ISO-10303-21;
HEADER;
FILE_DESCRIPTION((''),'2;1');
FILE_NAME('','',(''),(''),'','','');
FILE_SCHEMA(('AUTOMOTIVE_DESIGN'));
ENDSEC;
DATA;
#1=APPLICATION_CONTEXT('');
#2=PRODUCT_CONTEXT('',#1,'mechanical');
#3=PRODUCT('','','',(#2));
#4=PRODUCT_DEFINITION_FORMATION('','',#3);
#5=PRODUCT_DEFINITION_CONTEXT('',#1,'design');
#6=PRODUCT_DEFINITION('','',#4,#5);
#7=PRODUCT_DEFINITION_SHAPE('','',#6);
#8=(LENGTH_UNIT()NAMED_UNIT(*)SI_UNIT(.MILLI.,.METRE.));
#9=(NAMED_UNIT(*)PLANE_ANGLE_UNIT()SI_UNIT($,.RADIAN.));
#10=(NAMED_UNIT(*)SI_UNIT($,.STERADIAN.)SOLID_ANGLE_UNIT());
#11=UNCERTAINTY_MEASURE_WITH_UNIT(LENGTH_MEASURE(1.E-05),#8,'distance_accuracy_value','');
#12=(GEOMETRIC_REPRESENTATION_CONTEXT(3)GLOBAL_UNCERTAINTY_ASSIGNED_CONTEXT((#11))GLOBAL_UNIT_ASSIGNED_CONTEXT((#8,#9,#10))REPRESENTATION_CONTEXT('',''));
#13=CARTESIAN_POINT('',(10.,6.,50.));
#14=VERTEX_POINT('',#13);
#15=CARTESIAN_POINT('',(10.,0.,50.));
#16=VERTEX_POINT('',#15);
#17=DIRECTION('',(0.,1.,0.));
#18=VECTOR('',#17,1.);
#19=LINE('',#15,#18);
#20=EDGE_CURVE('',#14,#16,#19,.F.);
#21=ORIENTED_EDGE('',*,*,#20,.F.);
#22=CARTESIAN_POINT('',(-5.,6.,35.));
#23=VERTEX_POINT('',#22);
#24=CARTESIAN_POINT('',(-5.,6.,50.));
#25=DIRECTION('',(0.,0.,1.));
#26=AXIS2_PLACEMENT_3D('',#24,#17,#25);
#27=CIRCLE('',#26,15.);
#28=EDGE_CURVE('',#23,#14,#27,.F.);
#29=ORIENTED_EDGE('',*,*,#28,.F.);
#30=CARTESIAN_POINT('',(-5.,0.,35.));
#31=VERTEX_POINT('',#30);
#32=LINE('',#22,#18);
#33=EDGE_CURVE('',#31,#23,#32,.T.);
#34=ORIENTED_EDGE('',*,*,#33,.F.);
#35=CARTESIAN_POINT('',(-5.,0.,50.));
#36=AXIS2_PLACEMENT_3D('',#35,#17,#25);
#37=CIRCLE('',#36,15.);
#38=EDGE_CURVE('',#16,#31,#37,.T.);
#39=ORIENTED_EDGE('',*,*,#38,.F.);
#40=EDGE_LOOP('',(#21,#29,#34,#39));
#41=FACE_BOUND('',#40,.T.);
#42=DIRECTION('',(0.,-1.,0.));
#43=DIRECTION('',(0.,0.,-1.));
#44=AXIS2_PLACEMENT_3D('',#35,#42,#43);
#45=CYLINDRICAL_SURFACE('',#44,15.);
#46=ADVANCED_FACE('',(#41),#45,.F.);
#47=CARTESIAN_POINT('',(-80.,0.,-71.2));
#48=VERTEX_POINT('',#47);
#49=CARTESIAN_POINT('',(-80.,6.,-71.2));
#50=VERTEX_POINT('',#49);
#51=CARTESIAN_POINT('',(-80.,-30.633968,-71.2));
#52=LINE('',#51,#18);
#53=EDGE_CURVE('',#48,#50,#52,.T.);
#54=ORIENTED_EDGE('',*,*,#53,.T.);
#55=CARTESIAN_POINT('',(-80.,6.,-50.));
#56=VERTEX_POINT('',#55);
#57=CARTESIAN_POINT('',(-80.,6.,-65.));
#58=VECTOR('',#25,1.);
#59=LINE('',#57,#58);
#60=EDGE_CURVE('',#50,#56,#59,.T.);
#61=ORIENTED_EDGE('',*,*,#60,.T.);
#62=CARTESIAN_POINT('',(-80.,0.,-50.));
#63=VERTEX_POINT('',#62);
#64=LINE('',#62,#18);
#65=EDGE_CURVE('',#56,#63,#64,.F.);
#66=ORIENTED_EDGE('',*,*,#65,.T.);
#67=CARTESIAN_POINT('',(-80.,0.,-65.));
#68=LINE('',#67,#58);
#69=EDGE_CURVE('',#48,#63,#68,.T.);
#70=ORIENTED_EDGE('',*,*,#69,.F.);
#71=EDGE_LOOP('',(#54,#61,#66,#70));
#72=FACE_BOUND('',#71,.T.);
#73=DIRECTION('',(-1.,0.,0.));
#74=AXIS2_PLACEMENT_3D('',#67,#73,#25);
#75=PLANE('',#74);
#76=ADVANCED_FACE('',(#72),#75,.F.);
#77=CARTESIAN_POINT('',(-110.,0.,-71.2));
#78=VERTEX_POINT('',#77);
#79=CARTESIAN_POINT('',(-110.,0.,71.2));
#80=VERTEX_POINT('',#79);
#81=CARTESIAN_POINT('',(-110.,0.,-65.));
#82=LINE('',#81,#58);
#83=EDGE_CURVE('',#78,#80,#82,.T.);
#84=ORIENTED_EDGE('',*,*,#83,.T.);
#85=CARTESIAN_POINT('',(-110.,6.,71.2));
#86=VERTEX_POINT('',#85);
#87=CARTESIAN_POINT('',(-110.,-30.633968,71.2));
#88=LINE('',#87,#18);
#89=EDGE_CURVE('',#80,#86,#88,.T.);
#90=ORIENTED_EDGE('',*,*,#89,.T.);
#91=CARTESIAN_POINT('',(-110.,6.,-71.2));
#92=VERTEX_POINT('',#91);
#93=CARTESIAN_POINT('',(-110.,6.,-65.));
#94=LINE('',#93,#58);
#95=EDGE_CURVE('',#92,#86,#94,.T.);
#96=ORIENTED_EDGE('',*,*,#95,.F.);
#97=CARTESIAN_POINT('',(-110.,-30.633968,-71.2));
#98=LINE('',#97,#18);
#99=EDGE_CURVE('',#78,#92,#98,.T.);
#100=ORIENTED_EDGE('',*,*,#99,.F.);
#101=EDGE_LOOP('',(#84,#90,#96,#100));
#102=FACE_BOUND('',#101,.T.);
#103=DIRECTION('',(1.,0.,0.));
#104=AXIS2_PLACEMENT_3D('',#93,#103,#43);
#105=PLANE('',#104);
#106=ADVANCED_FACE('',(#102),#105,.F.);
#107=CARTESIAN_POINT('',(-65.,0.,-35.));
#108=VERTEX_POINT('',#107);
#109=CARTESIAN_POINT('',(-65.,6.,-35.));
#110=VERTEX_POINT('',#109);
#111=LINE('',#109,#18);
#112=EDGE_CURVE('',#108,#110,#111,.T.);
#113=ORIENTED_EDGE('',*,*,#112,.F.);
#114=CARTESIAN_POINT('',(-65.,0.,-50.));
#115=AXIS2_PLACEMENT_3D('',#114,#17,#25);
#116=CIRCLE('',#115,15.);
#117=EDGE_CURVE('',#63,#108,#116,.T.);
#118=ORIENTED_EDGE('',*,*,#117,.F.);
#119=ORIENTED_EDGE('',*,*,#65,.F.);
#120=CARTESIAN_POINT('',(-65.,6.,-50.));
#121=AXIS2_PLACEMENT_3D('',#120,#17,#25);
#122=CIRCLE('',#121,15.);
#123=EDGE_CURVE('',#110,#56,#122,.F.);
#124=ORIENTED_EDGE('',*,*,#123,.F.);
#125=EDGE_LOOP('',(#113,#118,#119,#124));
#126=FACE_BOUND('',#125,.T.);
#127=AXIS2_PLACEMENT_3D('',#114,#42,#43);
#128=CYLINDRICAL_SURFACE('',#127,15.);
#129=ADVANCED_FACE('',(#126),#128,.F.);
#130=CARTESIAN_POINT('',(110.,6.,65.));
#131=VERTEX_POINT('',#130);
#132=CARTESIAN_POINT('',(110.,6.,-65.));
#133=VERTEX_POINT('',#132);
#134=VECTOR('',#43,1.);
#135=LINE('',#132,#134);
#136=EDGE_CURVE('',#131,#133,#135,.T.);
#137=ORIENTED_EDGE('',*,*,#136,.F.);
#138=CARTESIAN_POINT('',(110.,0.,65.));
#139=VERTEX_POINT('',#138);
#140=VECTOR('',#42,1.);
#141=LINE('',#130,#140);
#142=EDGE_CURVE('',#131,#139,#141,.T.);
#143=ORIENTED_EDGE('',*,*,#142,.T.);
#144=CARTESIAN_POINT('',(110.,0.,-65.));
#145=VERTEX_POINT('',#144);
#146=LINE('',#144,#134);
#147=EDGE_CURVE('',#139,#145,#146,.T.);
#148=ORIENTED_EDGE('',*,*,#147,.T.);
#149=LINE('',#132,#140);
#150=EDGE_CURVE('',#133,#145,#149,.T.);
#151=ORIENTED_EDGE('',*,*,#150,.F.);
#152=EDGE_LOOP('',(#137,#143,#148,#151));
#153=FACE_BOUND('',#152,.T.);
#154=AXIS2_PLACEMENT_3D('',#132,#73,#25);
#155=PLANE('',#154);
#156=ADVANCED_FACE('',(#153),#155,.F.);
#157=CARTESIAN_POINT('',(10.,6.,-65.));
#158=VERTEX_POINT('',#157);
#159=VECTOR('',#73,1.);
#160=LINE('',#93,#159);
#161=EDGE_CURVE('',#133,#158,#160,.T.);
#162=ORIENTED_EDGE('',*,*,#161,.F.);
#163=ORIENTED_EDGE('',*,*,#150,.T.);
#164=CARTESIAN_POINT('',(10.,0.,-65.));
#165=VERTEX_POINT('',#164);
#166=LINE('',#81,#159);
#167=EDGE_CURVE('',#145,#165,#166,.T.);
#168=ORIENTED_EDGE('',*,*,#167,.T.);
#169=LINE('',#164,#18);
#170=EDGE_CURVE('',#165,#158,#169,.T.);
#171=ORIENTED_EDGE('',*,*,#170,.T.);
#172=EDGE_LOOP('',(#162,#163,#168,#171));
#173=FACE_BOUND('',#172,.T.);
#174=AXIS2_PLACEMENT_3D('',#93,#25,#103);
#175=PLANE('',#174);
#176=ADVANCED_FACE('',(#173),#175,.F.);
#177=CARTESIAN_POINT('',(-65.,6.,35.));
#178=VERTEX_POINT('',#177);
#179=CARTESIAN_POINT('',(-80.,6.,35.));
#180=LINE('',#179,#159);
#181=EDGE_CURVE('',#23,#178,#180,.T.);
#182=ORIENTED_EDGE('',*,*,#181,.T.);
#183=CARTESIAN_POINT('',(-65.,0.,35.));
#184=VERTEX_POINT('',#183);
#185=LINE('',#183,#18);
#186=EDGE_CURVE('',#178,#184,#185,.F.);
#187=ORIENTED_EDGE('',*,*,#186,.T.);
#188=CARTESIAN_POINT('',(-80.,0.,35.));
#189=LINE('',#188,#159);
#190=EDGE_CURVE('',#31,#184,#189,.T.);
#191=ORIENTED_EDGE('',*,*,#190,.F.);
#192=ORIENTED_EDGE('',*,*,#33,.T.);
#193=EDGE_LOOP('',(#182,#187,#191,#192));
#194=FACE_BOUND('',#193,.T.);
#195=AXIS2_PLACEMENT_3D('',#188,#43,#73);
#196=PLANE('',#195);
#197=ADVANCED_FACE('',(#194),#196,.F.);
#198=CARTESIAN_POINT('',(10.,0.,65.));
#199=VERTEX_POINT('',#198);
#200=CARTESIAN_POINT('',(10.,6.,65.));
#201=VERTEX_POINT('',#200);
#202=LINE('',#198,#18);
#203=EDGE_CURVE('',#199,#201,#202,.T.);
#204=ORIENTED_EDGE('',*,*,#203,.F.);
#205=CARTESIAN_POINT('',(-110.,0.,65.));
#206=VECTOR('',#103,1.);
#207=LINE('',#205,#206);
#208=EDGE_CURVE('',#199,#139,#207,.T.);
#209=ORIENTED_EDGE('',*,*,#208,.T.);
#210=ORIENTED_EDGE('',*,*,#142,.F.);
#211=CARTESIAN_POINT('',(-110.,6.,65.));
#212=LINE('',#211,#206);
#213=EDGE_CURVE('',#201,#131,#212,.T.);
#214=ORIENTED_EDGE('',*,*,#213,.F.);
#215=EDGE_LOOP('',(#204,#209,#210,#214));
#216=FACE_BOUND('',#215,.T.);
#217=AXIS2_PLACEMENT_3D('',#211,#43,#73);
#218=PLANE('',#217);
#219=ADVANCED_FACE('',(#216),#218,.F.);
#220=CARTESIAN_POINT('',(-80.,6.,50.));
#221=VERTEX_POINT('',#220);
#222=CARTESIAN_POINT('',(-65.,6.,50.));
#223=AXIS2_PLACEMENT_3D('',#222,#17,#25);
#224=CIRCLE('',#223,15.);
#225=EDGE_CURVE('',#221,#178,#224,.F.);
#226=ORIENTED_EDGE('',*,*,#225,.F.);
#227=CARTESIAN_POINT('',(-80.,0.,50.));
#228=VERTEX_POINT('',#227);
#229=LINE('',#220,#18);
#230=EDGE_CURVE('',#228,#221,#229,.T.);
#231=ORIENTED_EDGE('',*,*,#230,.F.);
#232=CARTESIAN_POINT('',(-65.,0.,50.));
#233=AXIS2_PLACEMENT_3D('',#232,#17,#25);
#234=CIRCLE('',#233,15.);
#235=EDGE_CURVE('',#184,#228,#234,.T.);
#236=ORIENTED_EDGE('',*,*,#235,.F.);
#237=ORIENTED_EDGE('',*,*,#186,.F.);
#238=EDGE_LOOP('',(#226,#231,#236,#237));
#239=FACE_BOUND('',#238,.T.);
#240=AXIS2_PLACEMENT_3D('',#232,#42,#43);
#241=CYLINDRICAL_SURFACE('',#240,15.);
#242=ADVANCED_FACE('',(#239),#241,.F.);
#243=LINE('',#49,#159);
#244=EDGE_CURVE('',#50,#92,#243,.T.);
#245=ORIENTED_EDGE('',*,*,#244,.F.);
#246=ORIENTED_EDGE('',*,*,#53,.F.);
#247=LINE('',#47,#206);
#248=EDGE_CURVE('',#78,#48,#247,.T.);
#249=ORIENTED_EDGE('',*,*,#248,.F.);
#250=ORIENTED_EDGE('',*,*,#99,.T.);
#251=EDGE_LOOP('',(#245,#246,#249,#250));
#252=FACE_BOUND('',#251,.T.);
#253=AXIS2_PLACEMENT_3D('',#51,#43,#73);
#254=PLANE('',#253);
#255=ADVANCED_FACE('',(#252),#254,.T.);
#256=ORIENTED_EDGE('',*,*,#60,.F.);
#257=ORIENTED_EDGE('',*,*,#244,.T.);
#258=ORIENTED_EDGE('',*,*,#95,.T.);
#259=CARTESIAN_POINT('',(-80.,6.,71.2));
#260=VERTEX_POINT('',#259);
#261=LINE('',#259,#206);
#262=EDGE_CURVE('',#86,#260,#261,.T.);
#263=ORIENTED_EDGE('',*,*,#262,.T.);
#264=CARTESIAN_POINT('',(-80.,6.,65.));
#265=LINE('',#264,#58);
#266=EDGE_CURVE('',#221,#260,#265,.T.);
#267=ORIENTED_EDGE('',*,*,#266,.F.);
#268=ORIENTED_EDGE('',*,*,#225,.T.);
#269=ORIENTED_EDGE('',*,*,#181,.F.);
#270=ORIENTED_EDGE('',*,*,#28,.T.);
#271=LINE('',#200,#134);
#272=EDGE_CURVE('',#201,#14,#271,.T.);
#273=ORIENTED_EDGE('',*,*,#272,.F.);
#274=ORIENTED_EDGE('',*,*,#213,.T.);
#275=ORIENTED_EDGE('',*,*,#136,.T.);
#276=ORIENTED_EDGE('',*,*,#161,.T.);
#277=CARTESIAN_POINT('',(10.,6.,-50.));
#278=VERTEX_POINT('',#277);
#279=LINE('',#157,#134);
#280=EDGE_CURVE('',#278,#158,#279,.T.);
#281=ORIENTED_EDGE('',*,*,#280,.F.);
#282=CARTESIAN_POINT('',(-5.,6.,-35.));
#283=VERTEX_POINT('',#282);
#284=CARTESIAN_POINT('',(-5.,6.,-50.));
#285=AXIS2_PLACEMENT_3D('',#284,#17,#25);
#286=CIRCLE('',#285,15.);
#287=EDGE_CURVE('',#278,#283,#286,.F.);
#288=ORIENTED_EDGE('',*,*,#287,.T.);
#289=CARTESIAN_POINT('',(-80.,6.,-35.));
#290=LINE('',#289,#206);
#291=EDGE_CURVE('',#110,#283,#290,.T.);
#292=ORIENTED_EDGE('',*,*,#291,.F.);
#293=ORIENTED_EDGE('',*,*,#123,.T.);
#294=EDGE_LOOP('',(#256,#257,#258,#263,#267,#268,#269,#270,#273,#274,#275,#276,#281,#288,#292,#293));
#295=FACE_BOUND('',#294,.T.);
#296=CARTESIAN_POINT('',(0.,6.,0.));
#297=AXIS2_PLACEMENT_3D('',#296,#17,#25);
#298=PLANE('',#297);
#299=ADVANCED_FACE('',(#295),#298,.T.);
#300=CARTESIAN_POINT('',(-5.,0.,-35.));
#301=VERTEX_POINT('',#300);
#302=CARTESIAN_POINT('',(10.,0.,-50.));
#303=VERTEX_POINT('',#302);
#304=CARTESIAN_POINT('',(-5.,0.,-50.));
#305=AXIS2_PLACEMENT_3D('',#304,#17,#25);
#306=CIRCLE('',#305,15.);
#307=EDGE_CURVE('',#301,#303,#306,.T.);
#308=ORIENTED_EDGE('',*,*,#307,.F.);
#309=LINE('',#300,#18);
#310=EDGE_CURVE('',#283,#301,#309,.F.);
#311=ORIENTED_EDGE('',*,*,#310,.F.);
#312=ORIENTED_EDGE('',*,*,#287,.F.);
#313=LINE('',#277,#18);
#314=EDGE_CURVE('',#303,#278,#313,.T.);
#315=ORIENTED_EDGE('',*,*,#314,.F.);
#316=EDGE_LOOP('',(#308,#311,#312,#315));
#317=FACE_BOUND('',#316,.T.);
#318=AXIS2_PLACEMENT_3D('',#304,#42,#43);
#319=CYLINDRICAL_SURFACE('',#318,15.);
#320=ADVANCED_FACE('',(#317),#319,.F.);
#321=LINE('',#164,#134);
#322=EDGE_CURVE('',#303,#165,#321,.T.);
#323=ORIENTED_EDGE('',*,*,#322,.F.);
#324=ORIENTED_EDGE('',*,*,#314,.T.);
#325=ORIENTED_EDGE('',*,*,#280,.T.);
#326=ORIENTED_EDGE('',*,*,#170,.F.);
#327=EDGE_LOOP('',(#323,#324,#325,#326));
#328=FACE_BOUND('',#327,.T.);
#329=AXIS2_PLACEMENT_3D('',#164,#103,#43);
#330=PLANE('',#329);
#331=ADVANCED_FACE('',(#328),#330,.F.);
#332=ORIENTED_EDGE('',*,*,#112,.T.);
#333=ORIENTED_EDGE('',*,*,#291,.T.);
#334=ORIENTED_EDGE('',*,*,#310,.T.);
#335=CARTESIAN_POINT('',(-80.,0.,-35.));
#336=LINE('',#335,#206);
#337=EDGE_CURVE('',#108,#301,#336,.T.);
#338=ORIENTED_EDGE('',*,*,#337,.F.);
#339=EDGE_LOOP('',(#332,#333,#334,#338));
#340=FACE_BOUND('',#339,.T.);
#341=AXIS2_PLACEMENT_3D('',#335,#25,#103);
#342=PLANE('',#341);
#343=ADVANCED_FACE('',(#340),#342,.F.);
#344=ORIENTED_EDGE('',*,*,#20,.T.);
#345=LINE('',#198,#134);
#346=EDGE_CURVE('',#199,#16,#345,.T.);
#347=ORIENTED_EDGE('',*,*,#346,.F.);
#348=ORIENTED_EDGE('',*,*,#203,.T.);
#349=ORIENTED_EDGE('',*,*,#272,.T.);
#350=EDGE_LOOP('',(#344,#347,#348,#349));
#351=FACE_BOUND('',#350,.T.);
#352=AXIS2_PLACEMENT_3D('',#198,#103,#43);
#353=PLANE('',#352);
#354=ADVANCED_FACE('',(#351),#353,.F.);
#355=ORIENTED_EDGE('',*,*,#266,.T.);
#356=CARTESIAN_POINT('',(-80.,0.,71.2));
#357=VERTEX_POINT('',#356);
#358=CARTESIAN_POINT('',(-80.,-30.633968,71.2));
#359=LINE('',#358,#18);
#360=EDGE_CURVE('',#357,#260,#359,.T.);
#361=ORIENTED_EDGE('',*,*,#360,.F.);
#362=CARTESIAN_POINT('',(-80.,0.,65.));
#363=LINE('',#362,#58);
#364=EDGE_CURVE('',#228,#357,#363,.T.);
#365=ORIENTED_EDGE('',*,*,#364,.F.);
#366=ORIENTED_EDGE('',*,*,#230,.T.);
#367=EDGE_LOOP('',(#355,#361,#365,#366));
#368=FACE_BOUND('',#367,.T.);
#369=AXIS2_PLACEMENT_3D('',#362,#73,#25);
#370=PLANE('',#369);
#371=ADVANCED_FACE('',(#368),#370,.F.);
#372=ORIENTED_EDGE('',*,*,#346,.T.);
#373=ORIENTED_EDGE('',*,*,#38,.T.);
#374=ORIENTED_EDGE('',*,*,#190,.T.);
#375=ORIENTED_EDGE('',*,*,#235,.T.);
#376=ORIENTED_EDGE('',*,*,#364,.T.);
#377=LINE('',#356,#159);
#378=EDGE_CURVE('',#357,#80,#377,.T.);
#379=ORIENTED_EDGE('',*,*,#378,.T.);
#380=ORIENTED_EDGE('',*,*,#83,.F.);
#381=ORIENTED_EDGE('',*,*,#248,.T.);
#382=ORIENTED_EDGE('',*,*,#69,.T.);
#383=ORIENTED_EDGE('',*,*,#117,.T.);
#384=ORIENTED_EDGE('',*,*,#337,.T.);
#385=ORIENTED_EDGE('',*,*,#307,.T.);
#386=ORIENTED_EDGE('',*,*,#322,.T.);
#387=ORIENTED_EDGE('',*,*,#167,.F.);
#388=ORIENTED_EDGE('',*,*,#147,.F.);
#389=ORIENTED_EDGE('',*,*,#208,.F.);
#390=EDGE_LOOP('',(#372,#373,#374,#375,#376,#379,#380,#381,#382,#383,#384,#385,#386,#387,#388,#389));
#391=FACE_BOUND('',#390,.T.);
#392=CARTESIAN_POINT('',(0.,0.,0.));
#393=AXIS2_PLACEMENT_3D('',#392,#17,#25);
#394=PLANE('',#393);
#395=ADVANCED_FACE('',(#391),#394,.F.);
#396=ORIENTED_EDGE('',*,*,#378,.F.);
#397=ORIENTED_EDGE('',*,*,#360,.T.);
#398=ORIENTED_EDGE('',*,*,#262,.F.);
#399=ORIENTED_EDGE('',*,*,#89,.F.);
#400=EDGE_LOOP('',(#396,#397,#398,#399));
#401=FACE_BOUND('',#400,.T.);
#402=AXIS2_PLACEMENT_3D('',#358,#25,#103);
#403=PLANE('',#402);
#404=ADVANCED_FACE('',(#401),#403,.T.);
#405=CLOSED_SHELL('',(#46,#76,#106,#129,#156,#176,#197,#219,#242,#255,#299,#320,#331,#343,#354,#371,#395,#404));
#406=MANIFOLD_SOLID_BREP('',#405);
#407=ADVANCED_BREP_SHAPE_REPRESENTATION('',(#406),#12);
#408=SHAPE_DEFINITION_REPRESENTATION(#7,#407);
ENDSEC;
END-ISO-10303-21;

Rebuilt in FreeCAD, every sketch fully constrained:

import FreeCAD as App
import Part
import Sketcher
from FreeCAD import Vector
Q = App.Units.Quantity


def edges_at(feature, points):
    """Names of the edges that pass closest to the given points."""
    edges = feature.Shape.Edges
    near = lambda p: min(range(len(edges)), key=lambda i: edges[i].distToShape(Part.Vertex(*p))[0])
    return sorted({f"Edge{near(p) + 1}" for p in points})


def add_polygon(sketch, points):
    """Adds a closed chain of lines whose ends are joined by coincident constraints."""
    first, n = sketch.GeometryCount, len(points)
    for a, b in zip(points, points[1:] + points[:1]):
        sketch.addGeometry(Part.LineSegment(App.Vector(*a, 0), App.Vector(*b, 0)), False)
    for i in range(n):
        sketch.addConstraint(Sketcher.Constraint("Coincident", first + i, 2, first + (i + 1) % n, 1))

doc = App.newDocument("Part")
body = doc.addObject("PartDesign::Body", "Body")

# Sketch on XZ plane
sketch1 = body.newObject("Sketcher::SketchObject", "Sketch")
sketch1.AttachmentSupport = (doc.getObject("XZ_Plane"), [""])
sketch1.MapMode = "FlatFace"
add_polygon(sketch1, [(-110, -65), (-110, 65), (110, 65), (110, -65)])  # lines 0-3
sketch1.addConstraint([
    Sketcher.Constraint("Vertical", 0),
    Sketcher.Constraint("Horizontal", 1),
    Sketcher.Constraint("Vertical", 2),
    Sketcher.Constraint("Horizontal", 3),
    Sketcher.Constraint("Symmetric", 0, 2, 2, 2, -1, 1),
    Sketcher.Constraint("DistanceX", 1, 1, 1, 2, Q("220 mm")),
    Sketcher.Constraint("DistanceY", 0, 1, 0, 2, Q("130 mm")),
])
pad1 = body.newObject("PartDesign::Pad", "Pad")
pad1.Profile = sketch1
pad1.Length = 6
pad1.Reversed = True

# Sketch on XZ plane
sketch2 = body.newObject("Sketcher::SketchObject", "Sketch001")
sketch2.AttachmentSupport = (doc.getObject("XZ_Plane"), [""])
sketch2.MapMode = "FlatFace"
sketch2.AttachmentOffset = App.Placement(Vector(0, 0, -6), App.Rotation())
add_polygon(sketch2, [(-80, 35), (-80, 65), (10, 65), (10, 35)])  # lines 0-3
add_polygon(sketch2, [(-80, -65), (-80, -35), (10, -35), (10, -65)])  # lines 4-7
sketch2.addConstraint([
    Sketcher.Constraint("Vertical", 0),
    Sketcher.Constraint("Horizontal", 1),
    Sketcher.Constraint("Vertical", 2),
    Sketcher.Constraint("Horizontal", 3),
    Sketcher.Constraint("Vertical", 4),
    Sketcher.Constraint("Horizontal", 5),
    Sketcher.Constraint("Vertical", 6),
    Sketcher.Constraint("Horizontal", 7),
    Sketcher.Constraint("Symmetric", 3, 2, 4, 2, -1),
    Sketcher.Constraint("Symmetric", 1, 2, 6, 2, -1),
    Sketcher.Constraint("DistanceX", 1, 1, 1, 2, Q("90 mm")),
    Sketcher.Constraint("DistanceY", 0, 1, 0, 2, Q("30 mm")),
    Sketcher.Constraint("DistanceX", 0, 2, -1, 1, Q("80 mm")),
    Sketcher.Constraint("DistanceY", -1, 1, 0, 2, Q("65 mm")),
])
pocket1 = body.newObject("PartDesign::Pocket", "Pocket")
pocket1.Profile = sketch2
pocket1.Type = "ThroughAll"
pocket1.Reversed = True
doc.recompute()

fillet = body.newObject("PartDesign::Fillet", "Fillet")
fillet.Base = (pocket1, edges_at(pocket1, [
    (-80, 3, 35),
    (10, 3, 35),
    (-80, 3, -35),
    (10, 3, -35),
]))
fillet.Radius = 15

# Sketch on XZ plane
sketch3 = body.newObject("Sketcher::SketchObject", "Sketch002")
sketch3.AttachmentSupport = (doc.getObject("XZ_Plane"), [""])
sketch3.MapMode = "FlatFace"
sketch3.AttachmentOffset = App.Placement(Vector(0, 0, -6), App.Rotation())
add_polygon(sketch3, [(-110, -71), (-110, -65), (-80, -65), (-80, -71)])  # lines 0-3
add_polygon(sketch3, [(-110, 65), (-110, 71), (-80, 71), (-80, 65)])  # lines 4-7
sketch3.addConstraint([
    Sketcher.Constraint("Vertical", 0),
    Sketcher.Constraint("Horizontal", 1),
    Sketcher.Constraint("Vertical", 2),
    Sketcher.Constraint("Horizontal", 3),
    Sketcher.Constraint("Vertical", 4),
    Sketcher.Constraint("Horizontal", 5),
    Sketcher.Constraint("Vertical", 6),
    Sketcher.Constraint("Horizontal", 7),
    Sketcher.Constraint("Symmetric", 3, 2, 4, 2, -1),
    Sketcher.Constraint("Symmetric", 1, 2, 6, 2, -1),
    Sketcher.Constraint("DistanceX", 1, 1, 1, 2, Q("30 mm")),
    Sketcher.Constraint("DistanceY", 0, 1, 0, 2, Q("6.2 mm")),
    Sketcher.Constraint("DistanceX", 0, 2, -1, 1, Q("110 mm")),
    Sketcher.Constraint("DistanceY", 0, 2, -1, 1, Q("65 mm")),
])
pad2 = body.newObject("PartDesign::Pad", "Pad001")
pad2.Profile = sketch3
pad2.Length = 6

doc.recompute()
